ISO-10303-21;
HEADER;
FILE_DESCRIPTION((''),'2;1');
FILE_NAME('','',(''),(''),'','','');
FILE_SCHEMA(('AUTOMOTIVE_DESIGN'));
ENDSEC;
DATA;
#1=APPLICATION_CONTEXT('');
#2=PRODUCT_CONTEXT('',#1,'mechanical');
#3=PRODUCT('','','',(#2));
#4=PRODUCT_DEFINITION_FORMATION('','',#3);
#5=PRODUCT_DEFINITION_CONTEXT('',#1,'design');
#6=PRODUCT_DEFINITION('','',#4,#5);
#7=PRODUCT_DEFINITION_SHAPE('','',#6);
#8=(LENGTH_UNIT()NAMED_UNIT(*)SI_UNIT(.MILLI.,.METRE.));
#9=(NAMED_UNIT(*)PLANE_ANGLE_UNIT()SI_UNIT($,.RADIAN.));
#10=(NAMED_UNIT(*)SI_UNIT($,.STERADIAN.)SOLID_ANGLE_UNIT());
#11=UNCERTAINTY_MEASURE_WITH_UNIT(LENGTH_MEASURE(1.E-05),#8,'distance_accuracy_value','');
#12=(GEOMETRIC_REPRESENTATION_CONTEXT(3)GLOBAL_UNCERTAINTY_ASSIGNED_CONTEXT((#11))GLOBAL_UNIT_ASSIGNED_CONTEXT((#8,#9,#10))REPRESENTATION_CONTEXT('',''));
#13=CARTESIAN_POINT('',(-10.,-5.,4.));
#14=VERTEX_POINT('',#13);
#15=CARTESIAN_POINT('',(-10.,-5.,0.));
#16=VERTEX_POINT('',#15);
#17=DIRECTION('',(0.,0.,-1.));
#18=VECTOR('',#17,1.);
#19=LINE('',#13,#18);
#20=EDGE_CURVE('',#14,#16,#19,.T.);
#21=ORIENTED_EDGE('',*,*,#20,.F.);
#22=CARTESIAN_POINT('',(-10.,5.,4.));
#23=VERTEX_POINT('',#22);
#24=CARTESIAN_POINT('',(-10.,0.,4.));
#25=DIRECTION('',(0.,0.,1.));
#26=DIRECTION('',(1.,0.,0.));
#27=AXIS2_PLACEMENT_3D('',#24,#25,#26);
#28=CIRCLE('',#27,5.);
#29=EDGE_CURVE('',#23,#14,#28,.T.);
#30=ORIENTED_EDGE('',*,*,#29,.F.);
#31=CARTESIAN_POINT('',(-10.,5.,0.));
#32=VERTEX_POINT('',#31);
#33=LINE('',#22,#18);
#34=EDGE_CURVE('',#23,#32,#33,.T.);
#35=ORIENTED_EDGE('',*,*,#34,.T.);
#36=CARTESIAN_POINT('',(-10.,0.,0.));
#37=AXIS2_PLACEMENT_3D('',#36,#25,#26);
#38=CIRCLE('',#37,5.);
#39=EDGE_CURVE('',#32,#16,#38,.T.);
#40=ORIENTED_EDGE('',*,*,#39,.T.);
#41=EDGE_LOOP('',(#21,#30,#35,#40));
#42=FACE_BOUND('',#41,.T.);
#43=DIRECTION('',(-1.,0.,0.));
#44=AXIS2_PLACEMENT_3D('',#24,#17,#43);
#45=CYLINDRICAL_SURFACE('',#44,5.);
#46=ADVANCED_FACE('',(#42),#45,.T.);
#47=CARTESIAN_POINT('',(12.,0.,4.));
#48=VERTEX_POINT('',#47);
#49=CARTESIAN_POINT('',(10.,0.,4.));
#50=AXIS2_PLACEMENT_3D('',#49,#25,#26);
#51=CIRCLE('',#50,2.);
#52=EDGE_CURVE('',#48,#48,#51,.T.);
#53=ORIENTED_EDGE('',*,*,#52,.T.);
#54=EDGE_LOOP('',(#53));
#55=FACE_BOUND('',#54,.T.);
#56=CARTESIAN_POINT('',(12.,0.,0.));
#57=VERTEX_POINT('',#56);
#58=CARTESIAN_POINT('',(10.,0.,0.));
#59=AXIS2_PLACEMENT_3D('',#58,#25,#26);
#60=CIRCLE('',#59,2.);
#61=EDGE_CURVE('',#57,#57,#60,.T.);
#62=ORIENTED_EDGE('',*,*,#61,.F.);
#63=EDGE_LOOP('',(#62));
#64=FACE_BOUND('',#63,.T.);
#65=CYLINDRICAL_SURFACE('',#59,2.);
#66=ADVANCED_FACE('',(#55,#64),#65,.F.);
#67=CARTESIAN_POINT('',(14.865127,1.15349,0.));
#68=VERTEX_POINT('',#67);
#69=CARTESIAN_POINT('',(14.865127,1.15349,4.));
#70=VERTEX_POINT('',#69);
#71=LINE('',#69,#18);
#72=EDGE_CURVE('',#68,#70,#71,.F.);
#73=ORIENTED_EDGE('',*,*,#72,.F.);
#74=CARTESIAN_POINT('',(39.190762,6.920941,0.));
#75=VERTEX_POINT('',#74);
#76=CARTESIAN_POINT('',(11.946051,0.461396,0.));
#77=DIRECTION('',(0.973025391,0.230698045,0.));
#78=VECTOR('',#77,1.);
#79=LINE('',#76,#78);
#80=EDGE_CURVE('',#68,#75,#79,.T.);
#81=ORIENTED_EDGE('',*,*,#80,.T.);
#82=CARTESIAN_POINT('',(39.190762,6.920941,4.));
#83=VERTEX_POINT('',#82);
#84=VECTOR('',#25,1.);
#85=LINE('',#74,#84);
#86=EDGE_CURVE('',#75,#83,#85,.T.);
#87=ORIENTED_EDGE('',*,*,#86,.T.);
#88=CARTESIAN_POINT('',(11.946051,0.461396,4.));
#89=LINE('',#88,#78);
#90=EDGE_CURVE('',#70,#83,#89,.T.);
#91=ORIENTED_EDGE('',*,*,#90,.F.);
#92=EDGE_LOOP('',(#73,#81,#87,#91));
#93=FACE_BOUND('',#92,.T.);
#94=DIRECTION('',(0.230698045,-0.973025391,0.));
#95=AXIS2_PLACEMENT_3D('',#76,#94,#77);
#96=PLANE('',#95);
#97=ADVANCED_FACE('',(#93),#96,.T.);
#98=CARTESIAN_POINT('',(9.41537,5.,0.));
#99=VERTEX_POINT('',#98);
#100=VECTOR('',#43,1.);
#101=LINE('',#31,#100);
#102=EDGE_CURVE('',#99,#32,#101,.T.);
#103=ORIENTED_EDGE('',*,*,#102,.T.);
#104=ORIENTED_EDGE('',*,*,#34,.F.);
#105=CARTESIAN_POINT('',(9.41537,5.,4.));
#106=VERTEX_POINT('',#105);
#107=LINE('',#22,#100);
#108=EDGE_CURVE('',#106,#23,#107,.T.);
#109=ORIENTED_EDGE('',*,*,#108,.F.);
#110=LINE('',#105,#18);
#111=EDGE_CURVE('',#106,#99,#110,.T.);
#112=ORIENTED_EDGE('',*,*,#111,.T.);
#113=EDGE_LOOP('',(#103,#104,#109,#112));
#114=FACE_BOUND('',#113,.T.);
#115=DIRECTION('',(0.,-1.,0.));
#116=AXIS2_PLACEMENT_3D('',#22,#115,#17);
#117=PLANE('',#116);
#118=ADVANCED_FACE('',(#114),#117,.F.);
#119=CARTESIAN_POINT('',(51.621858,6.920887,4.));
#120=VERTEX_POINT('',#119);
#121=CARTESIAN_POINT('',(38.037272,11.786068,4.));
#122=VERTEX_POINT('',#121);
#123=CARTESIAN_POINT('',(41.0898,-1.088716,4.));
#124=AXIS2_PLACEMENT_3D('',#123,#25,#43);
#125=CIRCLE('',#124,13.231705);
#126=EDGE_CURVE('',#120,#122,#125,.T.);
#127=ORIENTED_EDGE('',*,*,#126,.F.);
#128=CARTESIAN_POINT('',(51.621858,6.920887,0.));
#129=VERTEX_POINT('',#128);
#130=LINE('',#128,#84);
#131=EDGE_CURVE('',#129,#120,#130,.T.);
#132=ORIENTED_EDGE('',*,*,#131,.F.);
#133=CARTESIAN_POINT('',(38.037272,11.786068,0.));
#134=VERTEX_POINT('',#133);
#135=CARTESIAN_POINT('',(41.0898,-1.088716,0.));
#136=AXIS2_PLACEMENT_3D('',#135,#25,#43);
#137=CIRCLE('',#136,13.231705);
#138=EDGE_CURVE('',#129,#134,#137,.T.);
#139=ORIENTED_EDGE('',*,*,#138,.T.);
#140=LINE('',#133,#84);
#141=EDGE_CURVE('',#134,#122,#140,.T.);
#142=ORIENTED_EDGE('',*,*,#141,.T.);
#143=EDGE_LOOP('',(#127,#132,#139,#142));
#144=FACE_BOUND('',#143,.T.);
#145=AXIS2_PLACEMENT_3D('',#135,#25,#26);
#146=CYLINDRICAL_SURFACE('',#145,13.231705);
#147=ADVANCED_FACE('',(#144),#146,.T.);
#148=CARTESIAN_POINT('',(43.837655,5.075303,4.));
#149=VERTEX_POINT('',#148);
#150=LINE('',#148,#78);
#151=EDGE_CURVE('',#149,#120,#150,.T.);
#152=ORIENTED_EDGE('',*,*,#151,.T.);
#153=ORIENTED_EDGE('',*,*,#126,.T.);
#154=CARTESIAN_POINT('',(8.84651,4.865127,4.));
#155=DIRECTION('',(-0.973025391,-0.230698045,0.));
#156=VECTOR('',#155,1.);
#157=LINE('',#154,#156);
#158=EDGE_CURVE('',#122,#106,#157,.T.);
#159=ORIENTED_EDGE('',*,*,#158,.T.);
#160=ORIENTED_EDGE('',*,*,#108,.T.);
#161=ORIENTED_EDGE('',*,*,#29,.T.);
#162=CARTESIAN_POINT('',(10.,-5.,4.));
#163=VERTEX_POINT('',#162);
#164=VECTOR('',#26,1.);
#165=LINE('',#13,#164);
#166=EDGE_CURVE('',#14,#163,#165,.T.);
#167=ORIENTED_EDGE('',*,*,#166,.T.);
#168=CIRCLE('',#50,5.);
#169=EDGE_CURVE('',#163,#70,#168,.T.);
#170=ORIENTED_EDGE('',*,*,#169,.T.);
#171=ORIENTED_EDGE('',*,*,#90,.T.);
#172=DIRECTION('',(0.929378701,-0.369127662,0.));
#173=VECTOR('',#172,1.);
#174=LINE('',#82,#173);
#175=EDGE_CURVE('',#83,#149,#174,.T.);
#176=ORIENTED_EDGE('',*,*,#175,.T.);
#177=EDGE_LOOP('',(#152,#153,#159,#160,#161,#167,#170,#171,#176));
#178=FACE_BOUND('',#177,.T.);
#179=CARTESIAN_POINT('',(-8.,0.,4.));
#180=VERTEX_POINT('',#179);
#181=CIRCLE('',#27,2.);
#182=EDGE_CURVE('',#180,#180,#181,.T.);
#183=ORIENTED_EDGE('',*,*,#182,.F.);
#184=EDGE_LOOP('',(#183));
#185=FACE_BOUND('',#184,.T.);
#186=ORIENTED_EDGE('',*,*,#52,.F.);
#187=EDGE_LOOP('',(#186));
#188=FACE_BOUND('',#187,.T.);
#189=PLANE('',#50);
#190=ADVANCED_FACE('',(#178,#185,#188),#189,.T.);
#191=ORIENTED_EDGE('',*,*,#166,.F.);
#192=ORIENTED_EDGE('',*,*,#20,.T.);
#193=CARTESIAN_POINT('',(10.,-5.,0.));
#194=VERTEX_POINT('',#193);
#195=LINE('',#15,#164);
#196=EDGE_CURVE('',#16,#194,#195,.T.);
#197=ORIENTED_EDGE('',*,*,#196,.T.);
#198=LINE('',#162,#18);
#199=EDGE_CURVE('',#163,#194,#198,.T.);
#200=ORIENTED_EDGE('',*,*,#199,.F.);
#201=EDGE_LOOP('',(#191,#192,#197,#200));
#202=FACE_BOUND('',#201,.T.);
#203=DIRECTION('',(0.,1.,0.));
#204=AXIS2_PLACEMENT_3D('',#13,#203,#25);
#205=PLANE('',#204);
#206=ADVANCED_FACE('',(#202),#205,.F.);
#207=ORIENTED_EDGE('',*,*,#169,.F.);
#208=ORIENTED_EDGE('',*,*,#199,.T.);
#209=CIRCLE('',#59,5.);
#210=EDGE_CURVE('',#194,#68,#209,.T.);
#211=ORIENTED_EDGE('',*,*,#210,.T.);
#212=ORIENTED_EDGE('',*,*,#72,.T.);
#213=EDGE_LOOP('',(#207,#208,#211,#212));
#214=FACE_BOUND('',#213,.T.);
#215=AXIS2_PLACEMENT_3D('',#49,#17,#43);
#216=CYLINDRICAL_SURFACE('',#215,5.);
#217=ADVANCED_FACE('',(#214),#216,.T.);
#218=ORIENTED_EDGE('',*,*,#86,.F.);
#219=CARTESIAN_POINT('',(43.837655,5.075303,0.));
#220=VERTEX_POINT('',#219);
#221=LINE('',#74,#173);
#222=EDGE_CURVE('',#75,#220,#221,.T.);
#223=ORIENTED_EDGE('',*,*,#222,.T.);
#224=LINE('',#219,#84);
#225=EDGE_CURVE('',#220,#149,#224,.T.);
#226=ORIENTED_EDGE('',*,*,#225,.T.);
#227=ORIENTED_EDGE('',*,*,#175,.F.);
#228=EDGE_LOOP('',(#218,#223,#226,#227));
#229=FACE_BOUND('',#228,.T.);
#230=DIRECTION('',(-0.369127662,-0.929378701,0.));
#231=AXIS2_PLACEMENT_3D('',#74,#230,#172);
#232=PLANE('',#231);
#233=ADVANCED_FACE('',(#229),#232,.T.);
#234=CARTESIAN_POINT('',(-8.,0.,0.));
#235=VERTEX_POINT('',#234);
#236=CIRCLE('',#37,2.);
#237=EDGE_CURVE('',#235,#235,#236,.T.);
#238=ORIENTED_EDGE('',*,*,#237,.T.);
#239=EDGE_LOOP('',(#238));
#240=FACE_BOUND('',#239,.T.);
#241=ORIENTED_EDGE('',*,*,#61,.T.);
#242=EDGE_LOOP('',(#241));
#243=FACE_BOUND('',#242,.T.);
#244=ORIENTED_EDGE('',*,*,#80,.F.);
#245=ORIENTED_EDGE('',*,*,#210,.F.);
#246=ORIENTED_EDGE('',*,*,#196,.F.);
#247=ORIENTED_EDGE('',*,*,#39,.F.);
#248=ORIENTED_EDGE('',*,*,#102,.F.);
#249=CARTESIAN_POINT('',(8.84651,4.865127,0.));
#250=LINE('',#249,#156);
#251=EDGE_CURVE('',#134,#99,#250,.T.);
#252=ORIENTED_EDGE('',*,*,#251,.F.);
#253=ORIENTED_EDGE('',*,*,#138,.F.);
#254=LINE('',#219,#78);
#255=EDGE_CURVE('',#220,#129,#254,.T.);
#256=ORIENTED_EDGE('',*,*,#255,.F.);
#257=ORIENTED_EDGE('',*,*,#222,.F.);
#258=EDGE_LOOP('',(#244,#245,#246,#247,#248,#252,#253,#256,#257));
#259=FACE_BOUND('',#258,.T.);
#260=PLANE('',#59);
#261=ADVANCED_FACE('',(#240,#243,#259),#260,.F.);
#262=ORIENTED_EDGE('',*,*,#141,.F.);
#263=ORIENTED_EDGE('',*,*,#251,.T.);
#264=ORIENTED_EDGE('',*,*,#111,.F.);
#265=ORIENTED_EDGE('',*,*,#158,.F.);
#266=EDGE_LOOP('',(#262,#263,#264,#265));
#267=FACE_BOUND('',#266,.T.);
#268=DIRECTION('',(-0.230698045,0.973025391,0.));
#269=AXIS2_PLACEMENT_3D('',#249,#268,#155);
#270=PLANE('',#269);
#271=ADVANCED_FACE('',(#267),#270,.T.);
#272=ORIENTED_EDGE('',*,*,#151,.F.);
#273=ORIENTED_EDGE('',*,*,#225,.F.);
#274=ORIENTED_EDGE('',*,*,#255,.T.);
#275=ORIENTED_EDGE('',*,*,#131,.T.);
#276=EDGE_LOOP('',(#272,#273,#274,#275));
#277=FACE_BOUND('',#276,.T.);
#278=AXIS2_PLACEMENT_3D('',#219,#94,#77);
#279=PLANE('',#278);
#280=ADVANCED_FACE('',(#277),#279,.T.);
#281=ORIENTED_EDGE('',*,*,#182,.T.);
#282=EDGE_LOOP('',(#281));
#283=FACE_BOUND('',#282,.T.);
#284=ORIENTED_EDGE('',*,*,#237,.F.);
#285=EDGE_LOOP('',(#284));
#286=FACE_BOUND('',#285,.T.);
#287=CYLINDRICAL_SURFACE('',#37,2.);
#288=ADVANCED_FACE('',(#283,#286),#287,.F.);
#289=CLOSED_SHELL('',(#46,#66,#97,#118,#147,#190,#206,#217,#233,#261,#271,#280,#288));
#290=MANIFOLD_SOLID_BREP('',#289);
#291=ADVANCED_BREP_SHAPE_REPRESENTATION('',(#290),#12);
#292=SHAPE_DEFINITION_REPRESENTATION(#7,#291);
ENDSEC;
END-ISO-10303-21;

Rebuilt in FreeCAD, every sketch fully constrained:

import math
import FreeCAD as App
import Part
import Sketcher
Q = App.Units.Quantity

doc = App.newDocument("Part")
body = doc.addObject("PartDesign::Body", "Body")

sketch1 = doc.addObject("Sketcher::SketchObject", "Sketch")
body.addObject(sketch1)
sketch1.AttachmentSupport = (doc.XY_Plane, [""])
sketch1.MapMode = "FlatFace"
sketch1.addGeometry(Part.LineSegment(App.Vector(10, 5, 0), App.Vector(-10, 5, 0)), False)
sketch1.addGeometry(Part.ArcOfCircle(Part.Circle(App.Vector(-10, 0, 0), App.Vector(0, 0, 1), 5), math.radians(90), math.radians(270)), False)
sketch1.addGeometry(Part.LineSegment(App.Vector(-10, -5, 0), App.Vector(10, -5, 0)), False)
sketch1.addGeometry(Part.ArcOfCircle(Part.Circle(App.Vector(10, 0, 0), App.Vector(0, 0, 1), 5), math.radians(-90), math.radians(90)), False)
sketch1.addConstraint(Sketcher.Constraint("Tangent", 0, 2, 1, 1))
sketch1.addConstraint(Sketcher.Constraint("Tangent", 1, 2, 2, 1))
sketch1.addConstraint(Sketcher.Constraint("Tangent", 2, 2, 3, 1))
sketch1.addConstraint(Sketcher.Constraint("Tangent", 3, 2, 0, 1))
sketch1.addConstraint(Sketcher.Constraint("Horizontal", 0))
sketch1.addConstraint(Sketcher.Constraint("Horizontal", 2))
sketch1.addConstraint(Sketcher.Constraint("Symmetric", 1, 3, 3, 3, -1, 1))
sketch1.addConstraint(Sketcher.Constraint("Radius", 1, Q("5 mm")))
sketch1.addConstraint(Sketcher.Constraint("DistanceX", 0, 2, 0, 1, Q("20 mm")))
pad1 = doc.addObject("PartDesign::Pad", "Pad")
body.addObject(pad1)
pad1.Profile = sketch1
pad1.Length = 4

sketch2 = doc.addObject("Sketcher::SketchObject", "Sketch001")
body.addObject(sketch2)
sketch2.AttachmentSupport = (doc.XY_Plane, [""])
sketch2.MapMode = "FlatFace"
sketch2.AttachmentOffset = App.Placement(App.Vector(0, 0, 4), App.Rotation())
sketch2.addGeometry(Part.Circle(App.Vector(-10, 0, 0), App.Vector(0, 0, 1), 2), False)
sketch2.addGeometry(Part.Circle(App.Vector(10, 0, 0), App.Vector(0, 0, 1), 2), False)
sketch2.addConstraint(Sketcher.Constraint("Equal", 0, 1))
sketch2.addConstraint(Sketcher.Constraint("Symmetric", 0, 3, 1, 3, -1, 1))
sketch2.addConstraint(Sketcher.Constraint("PointOnObject", 0, 3, -1))
sketch2.addConstraint(Sketcher.Constraint("Diameter", 0, Q("4 mm")))
sketch2.addConstraint(Sketcher.Constraint("DistanceX", 0, 3, -1, 1, Q("10 mm")))
pocket1 = doc.addObject("PartDesign::Pocket", "Pocket")
body.addObject(pocket1)
pocket1.Profile = sketch2
pocket1.Length = 4

sketch3 = doc.addObject("Sketcher::SketchObject", "Sketch002")
body.addObject(sketch3)
sketch3.AttachmentSupport = (doc.XY_Plane, [""])
sketch3.MapMode = "FlatFace"
sketch3.AttachmentOffset = App.Placement(App.Vector(0, 0, 4), App.Rotation())
sketch3.addGeometry(Part.LineSegment(App.Vector(11.946051, 0.461396, 0), App.Vector(39.190762, 6.920941, 0)), False)
sketch3.addGeometry(Part.LineSegment(App.Vector(39.190762, 6.920941, 0), App.Vector(43.837655, 5.075303, 0)), False)
sketch3.addGeometry(Part.LineSegment(App.Vector(43.837655, 5.075303, 0), App.Vector(51.621858, 6.920887, 0)), False)
sketch3.addGeometry(Part.ArcOfCircle(Part.Circle(App.Vector(41.0898, -1.088716, 0), App.Vector(0, 0, 1), 13.231705), math.radians(37.252896), math.radians(103.338172)), False)
sketch3.addGeometry(Part.LineSegment(App.Vector(38.037272, 11.786068, 0), App.Vector(8.84651, 4.865127, 0)), False)
sketch3.addGeometry(Part.LineSegment(App.Vector(8.84651, 4.865127, 0), App.Vector(9.538604, 1.946051, 0)), False)
sketch3.addGeometry(Part.ArcOfCircle(Part.Circle(App.Vector(10, 0, 0), App.Vector(0, 0, 1), 2), math.radians(13.338172), math.radians(103.338172)), False)
sketch3.addConstraint(Sketcher.Constraint("Coincident", 0, 2, 1, 1))
sketch3.addConstraint(Sketcher.Constraint("Coincident", 1, 2, 2, 1))
sketch3.addConstraint(Sketcher.Constraint("Coincident", 2, 2, 3, 1))
sketch3.addConstraint(Sketcher.Constraint("Tangent", 3, 2, 4, 1))
sketch3.addConstraint(Sketcher.Constraint("Coincident", 4, 2, 5, 1))
sketch3.addConstraint(Sketcher.Constraint("Coincident", 5, 2, 6, 2))
sketch3.addConstraint(Sketcher.Constraint("Coincident", 6, 1, 0, 1))
sketch3.addConstraint(Sketcher.Constraint("PointOnObject", 6, 3, -1))
sketch3.addConstraint(Sketcher.Constraint("Parallel", 0, 2))
sketch3.addConstraint(Sketcher.Constraint("Parallel", 2, 4))
sketch3.addConstraint(Sketcher.Constraint("Perpendicular", 4, 5))
sketch3.addConstraint(Sketcher.Constraint("Radius", 6, Q("2 mm")))
sketch3.addConstraint(Sketcher.Constraint("Distance", 0, Q("28 mm")))
sketch3.addConstraint(Sketcher.Constraint("Distance", 1, Q("5 mm")))
sketch3.addConstraint(Sketcher.Constraint("Distance", 2, Q("8 mm")))
sketch3.addConstraint(Sketcher.Constraint("Distance", 4, Q("30 mm")))
sketch3.addConstraint(Sketcher.Constraint("Distance", 5, Q("3 mm")))
sketch3.addConstraint(Sketcher.Constraint("DistanceX", -1, 1, 6, 3, Q("10 mm")))
sketch3.addConstraint(Sketcher.Constraint("Radius", 3, Q("13.231705 mm")))
sketch3.addConstraint(Sketcher.Constraint("DistanceX", -1, 1, 3, 3, Q("41.0898 mm")))
sketch3.addConstraint(Sketcher.Constraint("DistanceX", -1, 1, 0, 2, Q("39.190762 mm")))
sketch3.addConstraint(Sketcher.Constraint("DistanceX", -1, 1, 2, 2, Q("51.621858 mm")))
pad2 = doc.addObject("PartDesign::Pad", "Pad001")
body.addObject(pad2)
pad2.Profile = sketch3
pad2.Length = 4
pad2.Reversed = True

doc.recompute()
